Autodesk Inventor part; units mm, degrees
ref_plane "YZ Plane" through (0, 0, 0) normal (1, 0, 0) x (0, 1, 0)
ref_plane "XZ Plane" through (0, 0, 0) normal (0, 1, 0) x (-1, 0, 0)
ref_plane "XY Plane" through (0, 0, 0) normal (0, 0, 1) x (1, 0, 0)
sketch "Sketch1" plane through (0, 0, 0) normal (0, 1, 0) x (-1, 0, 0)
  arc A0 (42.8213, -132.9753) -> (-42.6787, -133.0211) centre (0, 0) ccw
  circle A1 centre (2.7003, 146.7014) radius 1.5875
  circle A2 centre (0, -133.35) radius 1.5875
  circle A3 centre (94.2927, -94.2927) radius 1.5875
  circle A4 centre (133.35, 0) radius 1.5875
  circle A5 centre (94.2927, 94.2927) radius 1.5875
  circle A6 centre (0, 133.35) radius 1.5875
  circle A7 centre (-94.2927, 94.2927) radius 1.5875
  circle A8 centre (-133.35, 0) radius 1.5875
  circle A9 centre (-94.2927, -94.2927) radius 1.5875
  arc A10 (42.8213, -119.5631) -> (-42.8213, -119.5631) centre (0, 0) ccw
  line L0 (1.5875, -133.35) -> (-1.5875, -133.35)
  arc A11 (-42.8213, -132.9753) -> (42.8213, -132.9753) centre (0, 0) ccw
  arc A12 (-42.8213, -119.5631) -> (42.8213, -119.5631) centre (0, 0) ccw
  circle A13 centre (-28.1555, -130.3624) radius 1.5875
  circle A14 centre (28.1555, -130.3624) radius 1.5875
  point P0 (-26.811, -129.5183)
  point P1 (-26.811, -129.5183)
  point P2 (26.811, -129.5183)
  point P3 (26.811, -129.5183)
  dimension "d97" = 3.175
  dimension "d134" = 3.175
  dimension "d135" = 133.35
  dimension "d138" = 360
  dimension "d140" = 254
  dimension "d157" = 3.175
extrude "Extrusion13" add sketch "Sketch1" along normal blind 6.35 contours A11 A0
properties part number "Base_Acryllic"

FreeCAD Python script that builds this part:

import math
import FreeCAD as App
import Part
import Sketcher
from FreeCAD import Vector
Q = App.Units.Quantity

doc = App.newDocument("Part")
body = doc.addObject("PartDesign::Body", "Body")

sketch1 = body.newObject("Sketcher::SketchObject", "Sketch")
sketch1.AttachmentSupport = (doc.getObject("XZ_Plane"), [""])
sketch1.MapMode = "FlatFace"
sketch1.addGeometry(Part.ArcOfCircle(Part.Circle(Vector(0, 0, 0), Vector(0, 0, 1), 139.700015), math.radians(-107.849829), math.radians(-72.211599)), False)
sketch1.addGeometry(Part.ArcOfCircle(Part.Circle(Vector(0, 0, 0), Vector(0, 0, 1), 139.700015), math.radians(-72.211599), math.radians(252.150171)), False)
sketch1.addGeometry(Part.Circle(Vector(94.2927, -94.2927, 0), Vector(0, 0, 1), 1.5875), False)
sketch1.addGeometry(Part.Circle(Vector(28.1555, -130.3624, 0), Vector(0, 0, 1), 1.5875), False)
sketch1.addGeometry(Part.Circle(Vector(0, -133.35, 0), Vector(0, 0, 1), 1.5875), False)
sketch1.addGeometry(Part.Circle(Vector(133.35, 0, 0), Vector(0, 0, 1), 1.5875), False)
sketch1.addGeometry(Part.Circle(Vector(0, 0, 0), Vector(0, 0, 1), 126.999995), False)
sketch1.addGeometry(Part.Circle(Vector(-28.1555, -130.3624, 0), Vector(0, 0, 1), 1.5875), False)
sketch1.addGeometry(Part.Circle(Vector(-94.2927, -94.2927, 0), Vector(0, 0, 1), 1.5875), False)
sketch1.addGeometry(Part.Circle(Vector(-133.35, 0, 0), Vector(0, 0, 1), 1.5875), False)
sketch1.addGeometry(Part.Circle(Vector(94.2927, 94.2927, 0), Vector(0, 0, 1), 1.5875), False)
sketch1.addGeometry(Part.Circle(Vector(0, 133.35, 0), Vector(0, 0, 1), 1.5875), False)
sketch1.addGeometry(Part.Circle(Vector(-94.2927, 94.2927, 0), Vector(0, 0, 1), 1.5875), False)
sketch1.addConstraint(Sketcher.Constraint("Tangent", 0, 1, 1, 2))
sketch1.addConstraint(Sketcher.Constraint("Coincident", 1, 1, 0, 2))
sketch1.addConstraint(Sketcher.Constraint("Coincident", 0, 3, -1, 1))
sketch1.addConstraint(Sketcher.Constraint("Coincident", 6, 3, -1, 1))
sketch1.addConstraint(Sketcher.Constraint("Equal", 2, 3))
sketch1.addConstraint(Sketcher.Constraint("Equal", 3, 4))
sketch1.addConstraint(Sketcher.Constraint("Equal", 4, 5))
sketch1.addConstraint(Sketcher.Constraint("Equal", 5, 7))
sketch1.addConstraint(Sketcher.Constraint("Equal", 7, 8))
sketch1.addConstraint(Sketcher.Constraint("Equal", 8, 9))
sketch1.addConstraint(Sketcher.Constraint("Equal", 9, 10))
sketch1.addConstraint(Sketcher.Constraint("Equal", 10, 11))
sketch1.addConstraint(Sketcher.Constraint("Equal", 11, 12))
sketch1.addConstraint(Sketcher.Constraint("Symmetric", 5, 3, 9, 3, -1, 1))
sketch1.addConstraint(Sketcher.Constraint("Symmetric", 8, 3, 10, 3, -1, 1))
sketch1.addConstraint(Sketcher.Constraint("Symmetric", 4, 3, 11, 3, -1, 1))
sketch1.addConstraint(Sketcher.Constraint("Symmetric", 2, 3, 12, 3, -1, 1))
sketch1.addConstraint(Sketcher.Constraint("Symmetric", 3, 3, 7, 3, -2))
sketch1.addConstraint(Sketcher.Constraint("Symmetric", 2, 3, 8, 3, -2))
sketch1.addConstraint(Sketcher.Constraint("PointOnObject", 4, 3, -2))
sketch1.addConstraint(Sketcher.Constraint("PointOnObject", 5, 3, -1))
sketch1.addConstraint(Sketcher.Constraint("Diameter", 6, Q("10 in")))
sketch1.addConstraint(Sketcher.Constraint("Diameter", 2, Q("0.125 in")))
sketch1.addConstraint(Sketcher.Constraint("Radius", 0, Q("5.5 in")))
sketch1.addConstraint(Sketcher.Constraint("DistanceY", 4, 3, -1, 1, Q("5.25 in")))
sketch1.addConstraint(Sketcher.Constraint("DistanceX", -1, 1, 5, 3, Q("5.25 in")))
sketch1.addConstraint(Sketcher.Constraint("DistanceX", -1, 1, 2, 3, Q("3.7123 in")))
sketch1.addConstraint(Sketcher.Constraint("DistanceY", 2, 3, -1, 1, Q("3.7123 in")))
sketch1.addConstraint(Sketcher.Constraint("DistanceX", 7, 3, 2, 3, Q("4.8208 in")))
sketch1.addConstraint(Sketcher.Constraint("DistanceX", 0, 1, 7, 3, Q("0.5774 in")))
sketch1.addConstraint(Sketcher.Constraint("DistanceY", 1, 1, 0, 1, Q("0.0018 in")))
sketch1.addConstraint(Sketcher.Constraint("DistanceY", 3, 3, -1, 1, 130.3624))
pad1 = body.newObject("PartDesign::Pad", "Pad")
pad1.Profile = sketch1
pad1.Length = Q("0.25 in")
pad1.Reversed = True

doc.recompute()
